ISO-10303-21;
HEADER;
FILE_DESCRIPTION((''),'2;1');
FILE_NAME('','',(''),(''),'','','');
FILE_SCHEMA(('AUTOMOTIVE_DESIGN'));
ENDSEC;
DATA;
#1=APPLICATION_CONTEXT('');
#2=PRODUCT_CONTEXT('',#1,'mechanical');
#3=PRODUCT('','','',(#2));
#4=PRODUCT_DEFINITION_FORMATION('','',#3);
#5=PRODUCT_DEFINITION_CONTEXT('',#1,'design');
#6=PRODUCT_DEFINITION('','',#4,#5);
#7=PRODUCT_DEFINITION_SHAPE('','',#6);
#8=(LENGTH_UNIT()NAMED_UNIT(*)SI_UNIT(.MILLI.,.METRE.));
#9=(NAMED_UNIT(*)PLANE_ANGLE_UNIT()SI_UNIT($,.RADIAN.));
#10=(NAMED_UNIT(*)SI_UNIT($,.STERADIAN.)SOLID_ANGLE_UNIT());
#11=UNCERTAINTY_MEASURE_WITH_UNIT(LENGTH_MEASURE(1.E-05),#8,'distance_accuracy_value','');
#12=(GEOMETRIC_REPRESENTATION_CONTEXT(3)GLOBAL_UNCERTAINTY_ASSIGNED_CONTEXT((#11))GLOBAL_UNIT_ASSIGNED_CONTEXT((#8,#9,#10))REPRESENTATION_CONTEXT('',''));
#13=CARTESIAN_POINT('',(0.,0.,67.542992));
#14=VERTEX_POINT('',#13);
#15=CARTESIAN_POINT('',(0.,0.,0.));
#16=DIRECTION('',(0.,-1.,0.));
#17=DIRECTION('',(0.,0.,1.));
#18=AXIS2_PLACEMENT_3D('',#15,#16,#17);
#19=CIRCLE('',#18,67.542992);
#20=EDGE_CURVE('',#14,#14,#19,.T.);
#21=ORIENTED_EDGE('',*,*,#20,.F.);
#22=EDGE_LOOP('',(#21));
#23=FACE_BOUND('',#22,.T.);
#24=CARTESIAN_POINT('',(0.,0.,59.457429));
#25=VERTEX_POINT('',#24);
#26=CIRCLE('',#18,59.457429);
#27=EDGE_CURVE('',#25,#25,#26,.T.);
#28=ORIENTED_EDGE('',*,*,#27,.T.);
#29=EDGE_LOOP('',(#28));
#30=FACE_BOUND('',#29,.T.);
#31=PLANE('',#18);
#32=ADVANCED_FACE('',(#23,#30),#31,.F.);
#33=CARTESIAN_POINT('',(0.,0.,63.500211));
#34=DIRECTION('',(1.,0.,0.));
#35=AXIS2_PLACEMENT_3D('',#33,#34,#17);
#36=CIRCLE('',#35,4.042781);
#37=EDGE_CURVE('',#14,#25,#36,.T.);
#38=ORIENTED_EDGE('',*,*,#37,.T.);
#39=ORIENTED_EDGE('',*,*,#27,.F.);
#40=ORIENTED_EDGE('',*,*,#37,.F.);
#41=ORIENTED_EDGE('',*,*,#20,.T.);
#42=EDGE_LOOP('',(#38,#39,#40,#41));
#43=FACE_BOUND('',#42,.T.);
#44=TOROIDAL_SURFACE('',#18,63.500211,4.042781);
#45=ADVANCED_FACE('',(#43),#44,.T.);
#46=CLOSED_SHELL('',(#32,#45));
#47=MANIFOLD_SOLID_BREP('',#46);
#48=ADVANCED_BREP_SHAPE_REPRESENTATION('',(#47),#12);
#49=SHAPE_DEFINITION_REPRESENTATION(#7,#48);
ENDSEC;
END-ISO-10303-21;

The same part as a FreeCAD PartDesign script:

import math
import FreeCAD as App
import Part
import Sketcher

V = App.Vector
Q = App.Units.Quantity

doc = App.newDocument("Part")
body = doc.addObject("PartDesign::Body", "Body")

# Sketch on YZ plane
sketch1 = body.newObject("Sketcher::SketchObject", "Sketch")
sketch1.AttachmentSupport = (doc.getObject("YZ_Plane"), [""])
sketch1.MapMode = "FlatFace"
sketch1.addGeometry(Part.LineSegment(V(0, 59.5, 0), V(0, 67.5, 0)), False)
sketch1.addGeometry(Part.ArcOfCircle(Part.Circle(V(0, 63.5, 0), V(0, 0, 1), 4), math.radians(90), math.radians(270)), False)
sketch1.addConstraint(Sketcher.Constraint("Coincident", 0, 1, 1, 2))
sketch1.addConstraint(Sketcher.Constraint("Coincident", 1, 1, 0, 2))
sketch1.addConstraint(Sketcher.Constraint("Vertical", 0))
sketch1.addConstraint(Sketcher.Constraint("PointOnObject", 1, 3, -2))
sketch1.addConstraint(Sketcher.Constraint("PointOnObject", 0, 1, -2))
sketch1.addConstraint(Sketcher.Constraint("Radius", 1, Q("4.042781 mm")))
sketch1.addConstraint(Sketcher.Constraint("DistanceY", -1, 1, 1, 3, Q("63.500211 mm")))
revolution = body.newObject("PartDesign::Revolution", "Revolution")
revolution.Profile = sketch1
revolution.ReferenceAxis = (sketch1, ["H_Axis"])
revolution.Angle = 360

doc.recompute()
